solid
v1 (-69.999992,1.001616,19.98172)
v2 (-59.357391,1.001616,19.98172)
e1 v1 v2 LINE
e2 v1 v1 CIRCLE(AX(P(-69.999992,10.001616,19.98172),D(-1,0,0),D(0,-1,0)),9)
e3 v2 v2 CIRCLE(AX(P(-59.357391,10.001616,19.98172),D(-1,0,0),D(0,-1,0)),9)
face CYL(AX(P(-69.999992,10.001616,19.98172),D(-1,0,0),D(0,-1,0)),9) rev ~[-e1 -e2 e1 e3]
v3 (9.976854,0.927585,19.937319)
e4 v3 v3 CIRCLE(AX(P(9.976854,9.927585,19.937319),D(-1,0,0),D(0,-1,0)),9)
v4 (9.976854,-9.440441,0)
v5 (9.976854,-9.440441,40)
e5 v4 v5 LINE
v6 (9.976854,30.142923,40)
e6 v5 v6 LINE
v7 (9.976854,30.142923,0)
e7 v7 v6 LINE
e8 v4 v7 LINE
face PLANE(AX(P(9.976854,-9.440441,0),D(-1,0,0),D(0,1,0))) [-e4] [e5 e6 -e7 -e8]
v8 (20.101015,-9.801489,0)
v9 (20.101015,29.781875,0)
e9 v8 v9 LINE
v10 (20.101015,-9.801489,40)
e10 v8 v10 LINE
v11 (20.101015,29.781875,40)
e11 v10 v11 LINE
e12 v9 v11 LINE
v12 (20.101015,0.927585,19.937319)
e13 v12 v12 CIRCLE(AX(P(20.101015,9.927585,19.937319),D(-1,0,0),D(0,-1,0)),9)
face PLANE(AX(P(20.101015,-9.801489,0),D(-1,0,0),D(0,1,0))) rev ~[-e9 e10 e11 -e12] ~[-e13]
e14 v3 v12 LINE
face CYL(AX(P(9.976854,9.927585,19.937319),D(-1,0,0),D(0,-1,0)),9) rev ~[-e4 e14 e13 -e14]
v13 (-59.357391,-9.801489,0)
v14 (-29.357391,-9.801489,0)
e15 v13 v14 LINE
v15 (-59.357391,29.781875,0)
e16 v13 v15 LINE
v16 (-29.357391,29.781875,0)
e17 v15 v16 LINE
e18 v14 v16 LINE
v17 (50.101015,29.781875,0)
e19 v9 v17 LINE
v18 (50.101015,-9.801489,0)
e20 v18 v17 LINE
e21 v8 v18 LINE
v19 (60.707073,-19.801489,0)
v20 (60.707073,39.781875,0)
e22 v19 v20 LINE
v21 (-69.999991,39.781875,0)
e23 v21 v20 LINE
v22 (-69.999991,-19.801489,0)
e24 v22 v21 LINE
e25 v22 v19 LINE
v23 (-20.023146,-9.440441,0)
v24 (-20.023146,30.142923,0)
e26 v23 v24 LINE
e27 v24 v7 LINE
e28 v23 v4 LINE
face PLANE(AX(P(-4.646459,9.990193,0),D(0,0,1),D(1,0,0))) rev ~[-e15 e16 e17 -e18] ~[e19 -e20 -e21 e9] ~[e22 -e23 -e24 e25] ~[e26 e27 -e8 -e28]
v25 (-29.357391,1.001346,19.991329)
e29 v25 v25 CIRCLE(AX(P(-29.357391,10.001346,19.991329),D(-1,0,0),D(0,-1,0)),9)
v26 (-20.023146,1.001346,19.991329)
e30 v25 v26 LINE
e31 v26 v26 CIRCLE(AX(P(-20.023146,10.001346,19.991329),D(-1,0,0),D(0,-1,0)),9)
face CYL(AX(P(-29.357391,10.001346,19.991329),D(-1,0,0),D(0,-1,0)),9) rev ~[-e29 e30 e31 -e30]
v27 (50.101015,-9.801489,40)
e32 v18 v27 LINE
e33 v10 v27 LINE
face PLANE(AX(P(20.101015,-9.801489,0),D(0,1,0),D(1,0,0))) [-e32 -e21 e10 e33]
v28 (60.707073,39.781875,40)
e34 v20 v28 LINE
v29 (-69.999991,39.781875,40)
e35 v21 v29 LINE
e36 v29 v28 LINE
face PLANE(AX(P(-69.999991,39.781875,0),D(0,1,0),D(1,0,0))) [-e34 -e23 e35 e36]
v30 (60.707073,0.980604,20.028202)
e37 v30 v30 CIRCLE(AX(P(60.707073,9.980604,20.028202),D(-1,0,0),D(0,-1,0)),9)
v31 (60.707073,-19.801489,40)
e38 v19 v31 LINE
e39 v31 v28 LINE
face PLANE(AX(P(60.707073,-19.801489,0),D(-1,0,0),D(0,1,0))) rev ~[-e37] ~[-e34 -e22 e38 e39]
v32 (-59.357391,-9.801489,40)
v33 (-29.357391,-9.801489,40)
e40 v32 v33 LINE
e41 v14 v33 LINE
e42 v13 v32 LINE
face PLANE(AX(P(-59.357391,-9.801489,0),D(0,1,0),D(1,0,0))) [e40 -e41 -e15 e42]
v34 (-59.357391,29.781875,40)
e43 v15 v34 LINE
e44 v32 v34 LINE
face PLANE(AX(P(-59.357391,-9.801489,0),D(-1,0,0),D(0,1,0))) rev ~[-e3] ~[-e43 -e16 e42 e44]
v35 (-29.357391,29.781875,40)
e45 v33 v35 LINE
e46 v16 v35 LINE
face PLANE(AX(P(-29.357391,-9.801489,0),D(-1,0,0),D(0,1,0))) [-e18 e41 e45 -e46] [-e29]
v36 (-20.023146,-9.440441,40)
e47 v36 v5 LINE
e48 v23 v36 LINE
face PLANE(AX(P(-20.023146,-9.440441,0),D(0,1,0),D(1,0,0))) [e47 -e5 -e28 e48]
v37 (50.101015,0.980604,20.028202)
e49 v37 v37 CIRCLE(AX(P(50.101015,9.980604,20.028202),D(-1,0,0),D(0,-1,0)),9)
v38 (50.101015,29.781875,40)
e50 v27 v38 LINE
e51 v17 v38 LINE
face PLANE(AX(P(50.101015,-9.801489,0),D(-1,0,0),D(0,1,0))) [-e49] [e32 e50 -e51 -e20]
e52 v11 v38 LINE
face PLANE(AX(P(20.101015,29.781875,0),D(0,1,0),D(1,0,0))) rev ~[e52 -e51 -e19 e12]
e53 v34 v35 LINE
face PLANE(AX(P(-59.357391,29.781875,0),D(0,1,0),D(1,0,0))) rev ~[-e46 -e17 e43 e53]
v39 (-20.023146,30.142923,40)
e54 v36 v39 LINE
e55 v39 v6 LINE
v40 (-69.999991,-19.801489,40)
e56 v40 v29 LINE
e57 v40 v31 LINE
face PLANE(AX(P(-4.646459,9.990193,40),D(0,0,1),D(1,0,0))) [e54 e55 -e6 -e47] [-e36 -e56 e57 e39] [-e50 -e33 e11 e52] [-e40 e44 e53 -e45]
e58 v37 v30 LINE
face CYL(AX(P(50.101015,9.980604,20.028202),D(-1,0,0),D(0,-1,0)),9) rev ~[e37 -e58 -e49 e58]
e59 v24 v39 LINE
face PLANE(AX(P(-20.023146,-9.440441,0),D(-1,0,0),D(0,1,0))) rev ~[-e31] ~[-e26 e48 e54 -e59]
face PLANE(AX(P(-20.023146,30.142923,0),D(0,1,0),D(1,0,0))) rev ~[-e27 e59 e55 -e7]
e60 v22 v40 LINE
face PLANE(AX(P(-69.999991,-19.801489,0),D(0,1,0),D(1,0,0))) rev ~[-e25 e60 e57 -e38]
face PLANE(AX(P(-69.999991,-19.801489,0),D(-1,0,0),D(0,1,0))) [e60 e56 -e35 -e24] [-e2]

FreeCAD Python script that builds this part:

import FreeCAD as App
import Part
import Sketcher
Q = App.Units.Quantity


def add_polygon(sketch, points):
    """Adds a closed chain of lines whose ends are joined by coincident constraints."""
    first, n = sketch.GeometryCount, len(points)
    for a, b in zip(points, points[1:] + points[:1]):
        sketch.addGeometry(Part.LineSegment(App.Vector(*a, 0), App.Vector(*b, 0)), False)
    for i in range(n):
        sketch.addConstraint(Sketcher.Constraint("Coincident", first + i, 2, first + (i + 1) % n, 1))

doc = App.newDocument("Part")
body = doc.addObject("PartDesign::Body", "Body")

# Sketch on XY plane
sketch1 = body.newObject("Sketcher::SketchObject", "Sketch")
sketch1.AttachmentSupport = (doc.getObject("XY_Plane"), [""])
sketch1.MapMode = "FlatFace"
add_polygon(sketch1, [(-70, 40), (-70, -20), (61, -20), (61, 40)])  # lines 0-3
add_polygon(sketch1, [(-29, -10), (-59, -10), (-59, 30), (-29, 30)])  # lines 4-7
add_polygon(sketch1, [(50, -10), (20, -10), (20, 30), (50, 30)])  # lines 8-11
add_polygon(sketch1, [(10, -9), (-20, -9), (-20, 30), (10, 30)])  # lines 12-15
sketch1.addConstraint([
    Sketcher.Constraint("Vertical", 0),
    Sketcher.Constraint("Horizontal", 1),
    Sketcher.Constraint("Vertical", 2),
    Sketcher.Constraint("Horizontal", 3),
    Sketcher.Constraint("Horizontal", 4),
    Sketcher.Constraint("Vertical", 5),
    Sketcher.Constraint("Horizontal", 6),
    Sketcher.Constraint("Vertical", 7),
    Sketcher.Constraint("Horizontal", 8),
    Sketcher.Constraint("Vertical", 9),
    Sketcher.Constraint("Horizontal", 10),
    Sketcher.Constraint("Vertical", 11),
    Sketcher.Constraint("Horizontal", 12),
    Sketcher.Constraint("Vertical", 13),
    Sketcher.Constraint("Horizontal", 14),
    Sketcher.Constraint("Vertical", 15),
    Sketcher.Constraint("Horizontal", 7, 2, 8, 2),
    Sketcher.Constraint("Horizontal", 6, 2, 9, 2),
    Sketcher.Constraint("Equal", 6, 8),
    Sketcher.Constraint("Equal", 10, 12),
    Sketcher.Constraint("Equal", 11, 13),
    Sketcher.Constraint("DistanceX", 4, 2, 4, 1, Q("30 mm")),
    Sketcher.Constraint("DistanceY", 0, 2, 4, 2, Q("10 mm")),
    Sketcher.Constraint("DistanceY", 5, 2, 3, 2, Q("10 mm")),
    Sketcher.Constraint("DistanceX", 0, 2, 4, 2, Q("10.6426 mm")),
    Sketcher.Constraint("DistanceX", 1, 1, 1, 2, Q("130.707065 mm")),
    Sketcher.Constraint("DistanceY", 0, 2, 0, 1, Q("59.583364 mm")),
    Sketcher.Constraint("DistanceX", 0, 2, -1, 1, Q("69.999991 mm")),
    Sketcher.Constraint("DistanceY", 0, 2, -1, 1, Q("19.801489 mm")),
    Sketcher.Constraint("DistanceY", 12, 2, -1, 1, Q("9.440441 mm")),
    Sketcher.Constraint("DistanceX", 8, 2, 1, 2, Q("40.606059 mm")),
    Sketcher.Constraint("DistanceX", 12, 2, 8, 2, Q("40.124161 mm")),
])
pad1 = body.newObject("PartDesign::Pad", "Pad")
pad1.Profile = sketch1
pad1.Length = 40

# Sketch on YZ plane
sketch2 = body.newObject("Sketcher::SketchObject", "Sketch001")
sketch2.AttachmentSupport = (doc.getObject("YZ_Plane"), [""])
sketch2.MapMode = "FlatFace"
sketch2.AttachmentOffset = App.Placement(App.Vector(0, 0, -69.999992), App.Rotation())
sketch2.addGeometry(Part.Circle(App.Vector(10, 20, 0), App.Vector(0, 0, 1), 9), False)
sketch2.addConstraint([
    Sketcher.Constraint("Diameter", 0, Q("18 mm")),
    Sketcher.Constraint("DistanceY", -1, 1, 0, 3, Q("19.98172 mm")),
    Sketcher.Constraint("DistanceX", -1, 1, 0, 3, Q("10.001616 mm")),
])
pocket1 = body.newObject("PartDesign::Pocket", "Pocket")
pocket1.Profile = sketch2
pocket1.Length = 32
pocket1.Reversed = True

# Sketch on YZ plane
sketch3 = body.newObject("Sketcher::SketchObject", "Sketch002")
sketch3.AttachmentSupport = (doc.getObject("YZ_Plane"), [""])
sketch3.MapMode = "FlatFace"
sketch3.AttachmentOffset = App.Placement(App.Vector(0, 0, -29.357391), App.Rotation())
sketch3.addGeometry(Part.Circle(App.Vector(10, 20, 0), App.Vector(0, 0, 1), 9), False)
sketch3.addConstraint([
    Sketcher.Constraint("Diameter", 0, Q("18 mm")),
    Sketcher.Constraint("DistanceY", -1, 1, 0, 3, Q("19.991329 mm")),
    Sketcher.Constraint("DistanceX", -1, 1, 0, 3, Q("10.001346 mm")),
])
pocket2 = body.newObject("PartDesign::Pocket", "Pocket001")
pocket2.Profile = sketch3
pocket2.Length = 16
pocket2.Reversed = True

# Sketch on YZ plane
sketch4 = body.newObject("Sketcher::SketchObject", "Sketch003")
sketch4.AttachmentSupport = (doc.getObject("YZ_Plane"), [""])
sketch4.MapMode = "FlatFace"
sketch4.AttachmentOffset = App.Placement(App.Vector(0, 0, 9.976854), App.Rotation())
sketch4.addGeometry(Part.Circle(App.Vector(10, 20, 0), App.Vector(0, 0, 1), 9), False)
sketch4.addConstraint([
    Sketcher.Constraint("Diameter", 0, Q("18 mm")),
    Sketcher.Constraint("DistanceY", -1, 1, 0, 3, Q("19.937319 mm")),
    Sketcher.Constraint("DistanceX", -1, 1, 0, 3, Q("9.927585 mm")),
])
pocket3 = body.newObject("PartDesign::Pocket", "Pocket002")
pocket3.Profile = sketch4
pocket3.Length = 21
pocket3.Reversed = True

# Sketch on YZ plane
sketch5 = body.newObject("Sketcher::SketchObject", "Sketch004")
sketch5.AttachmentSupport = (doc.getObject("YZ_Plane"), [""])
sketch5.MapMode = "FlatFace"
sketch5.AttachmentOffset = App.Placement(App.Vector(0, 0, 50.101015), App.Rotation())
sketch5.addGeometry(Part.Circle(App.Vector(10, 20, 0), App.Vector(0, 0, 1), 9), False)
sketch5.addConstraint([
    Sketcher.Constraint("Diameter", 0, Q("18 mm")),
    Sketcher.Constraint("DistanceX", -1, 1, 0, 3, Q("9.980604 mm")),
    Sketcher.Constraint("DistanceY", -1, 1, 0, 3, Q("20.028202 mm")),
])
pocket4 = body.newObject("PartDesign::Pocket", "Pocket003")
pocket4.Profile = sketch5
pocket4.Length = 23
pocket4.Reversed = True

doc.recompute()
